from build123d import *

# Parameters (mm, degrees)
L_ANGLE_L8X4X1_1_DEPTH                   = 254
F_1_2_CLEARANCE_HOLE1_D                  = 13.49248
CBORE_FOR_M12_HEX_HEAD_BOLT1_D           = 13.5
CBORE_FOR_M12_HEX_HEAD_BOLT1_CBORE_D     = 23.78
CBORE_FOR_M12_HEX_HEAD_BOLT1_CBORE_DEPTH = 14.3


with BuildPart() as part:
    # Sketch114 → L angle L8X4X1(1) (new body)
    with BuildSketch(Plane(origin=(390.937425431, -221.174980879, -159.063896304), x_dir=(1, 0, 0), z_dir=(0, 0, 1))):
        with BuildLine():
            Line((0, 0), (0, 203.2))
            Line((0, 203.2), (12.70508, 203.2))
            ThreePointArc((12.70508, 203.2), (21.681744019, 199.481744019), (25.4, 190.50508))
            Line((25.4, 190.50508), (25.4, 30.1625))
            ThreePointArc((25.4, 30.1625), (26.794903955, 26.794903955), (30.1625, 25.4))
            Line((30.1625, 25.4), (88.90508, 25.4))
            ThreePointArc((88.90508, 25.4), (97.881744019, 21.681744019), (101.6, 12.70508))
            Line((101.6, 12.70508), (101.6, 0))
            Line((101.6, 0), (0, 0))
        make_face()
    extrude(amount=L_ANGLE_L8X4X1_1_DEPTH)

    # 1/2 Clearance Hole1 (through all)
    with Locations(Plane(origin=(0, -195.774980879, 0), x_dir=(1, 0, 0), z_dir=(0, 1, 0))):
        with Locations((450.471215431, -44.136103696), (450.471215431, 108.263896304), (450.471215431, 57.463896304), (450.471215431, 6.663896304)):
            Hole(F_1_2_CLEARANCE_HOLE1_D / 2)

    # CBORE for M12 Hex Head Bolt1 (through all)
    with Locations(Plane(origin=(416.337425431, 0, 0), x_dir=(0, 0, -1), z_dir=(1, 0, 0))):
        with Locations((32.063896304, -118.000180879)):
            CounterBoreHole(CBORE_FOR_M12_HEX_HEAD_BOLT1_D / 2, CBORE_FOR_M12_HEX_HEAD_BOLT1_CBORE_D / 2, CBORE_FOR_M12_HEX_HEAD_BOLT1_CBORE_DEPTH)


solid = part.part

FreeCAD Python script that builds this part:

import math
import FreeCAD as App
import Part
import Sketcher
Q = App.Units.Quantity

doc = App.newDocument("Part")
body = doc.addObject("PartDesign::Body", "Body")

sketch1 = body.newObject("Sketcher::SketchObject", "Sketch")
sketch1.AttachmentSupport = (doc.getObject("XY_Plane"), [""])
sketch1.MapMode = "FlatFace"
sketch1.AttachmentOffset = App.Placement(App.Vector(0, 0, -159.063896), App.Rotation())
sketch1.addGeometry(Part.LineSegment(App.Vector(390.9, -18, 0), App.Vector(390.9, -221.2, 0)), False)
sketch1.addGeometry(Part.LineSegment(App.Vector(390.9, -221.2, 0), App.Vector(492.5, -221.2, 0)), False)
sketch1.addGeometry(Part.LineSegment(App.Vector(492.5, -221.2, 0), App.Vector(492.5, -208.5, 0)), False)
sketch1.addGeometry(Part.ArcOfCircle(Part.Circle(App.Vector(479.8, -208.5, 0), App.Vector(0, 0, 1), 12.7), math.radians(0), math.radians(90)), False)
sketch1.addGeometry(Part.LineSegment(App.Vector(479.8, -195.8, 0), App.Vector(421.1, -195.8, 0)), False)
sketch1.addGeometry(Part.ArcOfCircle(Part.Circle(App.Vector(421.1, -191, 0), App.Vector(0, 0, 1), 4.8), math.radians(-180), math.radians(-90)), False)
sketch1.addGeometry(Part.LineSegment(App.Vector(416.3, -191, 0), App.Vector(416.3, -30.7, 0)), False)
sketch1.addGeometry(Part.ArcOfCircle(Part.Circle(App.Vector(403.6, -30.7, 0), App.Vector(0, 0, 1), 12.7), math.radians(0), math.radians(90)), False)
sketch1.addGeometry(Part.LineSegment(App.Vector(403.6, -18, 0), App.Vector(390.9, -18, 0)), False)
sketch1.addConstraint(Sketcher.Constraint("Coincident", 0, 2, 1, 1))
sketch1.addConstraint(Sketcher.Constraint("Coincident", 1, 2, 2, 1))
sketch1.addConstraint(Sketcher.Constraint("Tangent", 2, 2, 3, 1))
sketch1.addConstraint(Sketcher.Constraint("Tangent", 3, 2, 4, 1))
sketch1.addConstraint(Sketcher.Constraint("Tangent", 4, 2, 5, 2))
sketch1.addConstraint(Sketcher.Constraint("Tangent", 5, 1, 6, 1))
sketch1.addConstraint(Sketcher.Constraint("Tangent", 6, 2, 7, 1))
sketch1.addConstraint(Sketcher.Constraint("Tangent", 7, 2, 8, 1))
sketch1.addConstraint(Sketcher.Constraint("Coincident", 8, 2, 0, 1))
sketch1.addConstraint(Sketcher.Constraint("Vertical", 0))
sketch1.addConstraint(Sketcher.Constraint("Horizontal", 1))
sketch1.addConstraint(Sketcher.Constraint("Vertical", 2))
sketch1.addConstraint(Sketcher.Constraint("Horizontal", 4))
sketch1.addConstraint(Sketcher.Constraint("Vertical", 6))
sketch1.addConstraint(Sketcher.Constraint("Horizontal", 8))
sketch1.addConstraint(Sketcher.Constraint("Equal", 3, 7))
sketch1.addConstraint(Sketcher.Constraint("Equal", 8, 2))
sketch1.addConstraint(Sketcher.Constraint("DistanceX", 1, 1, 1, 2, Q("4 in")))
sketch1.addConstraint(Sketcher.Constraint("DistanceY", 0, 2, 0, 1, Q("8 in")))
sketch1.addConstraint(Sketcher.Constraint("Radius", 5, Q("0.1875 in")))
sketch1.addConstraint(Sketcher.Constraint("DistanceX", 7, 3, 3, 3, Q("3 in")))
sketch1.addConstraint(Sketcher.Constraint("Radius", 3, Q("0.4998 in")))
sketch1.addConstraint(Sketcher.Constraint("DistanceY", 3, 3, -1, 1, 208.469901))
sketch1.addConstraint(Sketcher.Constraint("DistanceX", -1, 1, 3, 3, 479.842505))
pad1 = body.newObject("PartDesign::Pad", "Pad")
pad1.Profile = sketch1
pad1.Length = Q("10 in")

sketch2 = body.newObject("Sketcher::SketchObject", "Sketch001")
sketch2.AttachmentSupport = (doc.getObject("XZ_Plane"), [""])
sketch2.MapMode = "FlatFace"
sketch2.AttachmentOffset = App.Placement(App.Vector(0, 0, 195.774981), App.Rotation())
sketch2.addGeometry(Part.Circle(App.Vector(450, 44, 0), App.Vector(0, 0, 1), 7), False)
sketch2.addGeometry(Part.Circle(App.Vector(450, -108, 0), App.Vector(0, 0, 1), 7), False)
sketch2.addGeometry(Part.Circle(App.Vector(450, -57, 0), App.Vector(0, 0, 1), 7), False)
sketch2.addGeometry(Part.Circle(App.Vector(450, -7, 0), App.Vector(0, 0, 1), 7), False)
sketch2.addConstraint(Sketcher.Constraint("Equal", 0, 1))
sketch2.addConstraint(Sketcher.Constraint("Equal", 1, 2))
sketch2.addConstraint(Sketcher.Constraint("Equal", 2, 3))
sketch2.addConstraint(Sketcher.Constraint("Vertical", 0, 3, 1, 3))
sketch2.addConstraint(Sketcher.Constraint("Vertical", 1, 3, 2, 3))
sketch2.addConstraint(Sketcher.Constraint("Vertical", 2, 3, 3, 3))
sketch2.addConstraint(Sketcher.Constraint("DistanceY", 1, 3, 0, 3, Q("6 in")))
sketch2.addConstraint(Sketcher.Constraint("DistanceY", 1, 3, 2, 3, Q("2 in")))
sketch2.addConstraint(Sketcher.Constraint("DistanceY", 3, 3, 0, 3, Q("2 in")))
sketch2.addConstraint(Sketcher.Constraint("Diameter", 0, Q("0.5312 in")))
sketch2.addConstraint(Sketcher.Constraint("DistanceX", -1, 1, 0, 3, 450.471215))
sketch2.addConstraint(Sketcher.Constraint("DistanceY", -1, 1, 0, 3, 44.136104))
doc.recompute()
hole = body.newObject("PartDesign::Hole", "Hole")
hole.Profile = sketch2
hole.ThreadType = "None"
hole.Diameter = Q("0.5312 in")
hole.DepthType = "ThroughAll"
hole.Reversed = True

sketch3 = body.newObject("Sketcher::SketchObject", "Sketch002")
sketch3.AttachmentSupport = (doc.getObject("YZ_Plane"), [""])
sketch3.MapMode = "FlatFace"
sketch3.AttachmentOffset = App.Placement(App.Vector(0, 0, 416.337425), App.Rotation())
sketch3.addGeometry(Part.Circle(App.Vector(-118, -32, 0), App.Vector(0, 0, 1), 7), False)
sketch3.addConstraint(Sketcher.Constraint("Diameter", 0, 13.5))
sketch3.addConstraint(Sketcher.Constraint("DistanceX", 0, 3, -1, 1, 118.000181))
sketch3.addConstraint(Sketcher.Constraint("DistanceY", 0, 3, -1, 1, 32.063896))
doc.recompute()
hole2 = body.newObject("PartDesign::Hole", "Hole001")
hole2.Profile = sketch3
hole2.ThreadType = "None"
hole2.Diameter = 13.5
hole2.DepthType = "ThroughAll"
hole2.HoleCutType = "Counterbore"
hole2.HoleCutDiameter = 23.78
hole2.HoleCutDepth = 14.3

doc.recompute()
